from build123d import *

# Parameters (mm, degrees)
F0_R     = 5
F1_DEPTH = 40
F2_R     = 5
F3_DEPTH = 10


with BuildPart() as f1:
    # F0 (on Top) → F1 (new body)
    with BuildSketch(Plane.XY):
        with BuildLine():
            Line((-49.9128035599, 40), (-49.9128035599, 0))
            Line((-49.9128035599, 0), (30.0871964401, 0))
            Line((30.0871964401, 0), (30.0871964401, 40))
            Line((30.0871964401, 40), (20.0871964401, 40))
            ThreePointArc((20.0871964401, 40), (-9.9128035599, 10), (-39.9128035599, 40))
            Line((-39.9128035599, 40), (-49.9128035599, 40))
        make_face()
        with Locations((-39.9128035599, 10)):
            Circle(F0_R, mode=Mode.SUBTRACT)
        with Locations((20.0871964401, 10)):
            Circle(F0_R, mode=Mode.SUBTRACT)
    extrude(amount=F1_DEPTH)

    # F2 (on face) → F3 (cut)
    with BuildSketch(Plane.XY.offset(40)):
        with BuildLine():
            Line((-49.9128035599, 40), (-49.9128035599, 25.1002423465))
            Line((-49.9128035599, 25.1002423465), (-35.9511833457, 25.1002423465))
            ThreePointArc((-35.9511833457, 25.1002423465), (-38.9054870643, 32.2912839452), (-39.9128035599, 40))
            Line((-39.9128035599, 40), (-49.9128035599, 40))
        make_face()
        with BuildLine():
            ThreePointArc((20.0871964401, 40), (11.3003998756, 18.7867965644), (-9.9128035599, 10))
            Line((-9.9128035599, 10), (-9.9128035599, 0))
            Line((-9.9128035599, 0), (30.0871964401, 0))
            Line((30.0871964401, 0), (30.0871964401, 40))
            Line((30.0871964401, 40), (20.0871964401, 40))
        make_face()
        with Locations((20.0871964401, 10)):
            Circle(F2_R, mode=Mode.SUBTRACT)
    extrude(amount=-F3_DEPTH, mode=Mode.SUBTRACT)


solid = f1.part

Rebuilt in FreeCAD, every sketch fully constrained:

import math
import FreeCAD as App
import Part
import Sketcher
from FreeCAD import Vector

doc = App.newDocument("Part")
body = doc.addObject("PartDesign::Body", "Body")

# Sketch on XY plane
sketch1 = body.newObject("Sketcher::SketchObject", "Sketch")
sketch1.AttachmentSupport = (doc.getObject("XY_Plane"), [""])
sketch1.MapMode = "FlatFace"
sketch1.addGeometry([
    Part.LineSegment(Vector(-50, 40, 0), Vector(-50, 0, 0)),  # 0
    Part.LineSegment(Vector(-50, 0, 0), Vector(30, 0, 0)),  # 1
    Part.LineSegment(Vector(30, 0, 0), Vector(30, 40, 0)),  # 2
    Part.LineSegment(Vector(30, 40, 0), Vector(20, 40, 0)),  # 3
    Part.ArcOfCircle(Part.Circle(Vector(-10, 40, 0), Vector(0, 0, 1), 30), math.radians(180), math.radians(360)),  # 4
    Part.LineSegment(Vector(-40, 40, 0), Vector(-50, 40, 0)),  # 5
    Part.Circle(Vector(-40, 10, 0), Vector(0, 0, 1), 5),  # 6
    Part.Circle(Vector(20, 10, 0), Vector(0, 0, 1), 5),  # 7
], False)
sketch1.addConstraint([
    Sketcher.Constraint("Coincident", 0, 2, 1, 1),
    Sketcher.Constraint("Coincident", 1, 2, 2, 1),
    Sketcher.Constraint("Coincident", 2, 2, 3, 1),
    Sketcher.Constraint("Coincident", 3, 2, 4, 2),
    Sketcher.Constraint("Coincident", 4, 1, 5, 1),
    Sketcher.Constraint("Coincident", 5, 2, 0, 1),
    Sketcher.Constraint("Vertical", 0),
    Sketcher.Constraint("Horizontal", 1),
    Sketcher.Constraint("Vertical", 2),
    Sketcher.Constraint("Horizontal", 3),
    Sketcher.Constraint("Horizontal", 5),
    Sketcher.Constraint("Equal", 6, 7),
    Sketcher.Constraint("PointOnObject", 0, 2, -1),
    Sketcher.Constraint("Horizontal", 6, 3, 7, 3),
    Sketcher.Constraint("Horizontal", 4, 3, 2, 2),
    Sketcher.Constraint("Horizontal", 3, 2, 4, 1),
    Sketcher.Constraint("Vertical", 7, 3, 3, 2),
    Sketcher.Constraint("Vertical", 6, 3, 4, 1),
    Sketcher.Constraint("Equal", 3, 5),
    Sketcher.Constraint("Diameter", 6, 10.0),
    Sketcher.Constraint("Radius", 4, 30.0),
    Sketcher.Constraint("DistanceX", 1, 1, 1, 2, 80.0),
    Sketcher.Constraint("DistanceY", 0, 2, 0, 1, 40.0),
    Sketcher.Constraint("DistanceY", -1, 1, 6, 3, 10.0),
    Sketcher.Constraint("DistanceX", 4, 3, -1, 1, 9.912804),
])
pad1 = body.newObject("PartDesign::Pad", "Pad")
pad1.Profile = sketch1
pad1.Length = 40

# Sketch on XY plane
sketch2 = body.newObject("Sketcher::SketchObject", "Sketch001")
sketch2.AttachmentSupport = (doc.getObject("XY_Plane"), [""])
sketch2.MapMode = "FlatFace"
sketch2.AttachmentOffset = App.Placement(Vector(0, 0, 40), App.Rotation())
sketch2.addGeometry([
    Part.LineSegment(Vector(-50, 40, 0), Vector(-50, 25, 0)),  # 0
    Part.LineSegment(Vector(-50, 25, 0), Vector(-36, 25, 0)),  # 1
    Part.ArcOfCircle(Part.Circle(Vector(-10, 40, 0), Vector(0, 0, 1), 30), math.radians(180), math.radians(210)),  # 2
    Part.LineSegment(Vector(-40, 40, 0), Vector(-50, 40, 0)),  # 3
    Part.ArcOfCircle(Part.Circle(Vector(-10, 40, 0), Vector(0, 0, 1), 30), math.radians(-90), math.radians(0)),  # 4
    Part.LineSegment(Vector(-10, 10, 0), Vector(-10, 0, 0)),  # 5
    Part.LineSegment(Vector(-10, 0, 0), Vector(30, 0, 0)),  # 6
    Part.LineSegment(Vector(30, 0, 0), Vector(30, 40, 0)),  # 7
    Part.LineSegment(Vector(30, 40, 0), Vector(20, 40, 0)),  # 8
    Part.Circle(Vector(20, 10, 0), Vector(0, 0, 1), 5),  # 9
], False)
sketch2.addConstraint([
    Sketcher.Constraint("Coincident", 0, 2, 1, 1),
    Sketcher.Constraint("Coincident", 1, 2, 2, 2),
    Sketcher.Constraint("Coincident", 2, 1, 3, 1),
    Sketcher.Constraint("Coincident", 3, 2, 0, 1),
    Sketcher.Constraint("Coincident", 4, 1, 5, 1),
    Sketcher.Constraint("Coincident", 5, 2, 6, 1),
    Sketcher.Constraint("Coincident", 6, 2, 7, 1),
    Sketcher.Constraint("Coincident", 7, 2, 8, 1),
    Sketcher.Constraint("Coincident", 8, 2, 4, 2),
    Sketcher.Constraint("Vertical", 0),
    Sketcher.Constraint("Horizontal", 1),
    Sketcher.Constraint("Horizontal", 3),
    Sketcher.Constraint("Vertical", 5),
    Sketcher.Constraint("Horizontal", 6),
    Sketcher.Constraint("Vertical", 7),
    Sketcher.Constraint("Horizontal", 8),
    Sketcher.Constraint("Coincident", 4, 3, 2, 3),
    Sketcher.Constraint("Equal", 2, 4),
    Sketcher.Constraint("PointOnObject", 5, 2, -1),
    Sketcher.Constraint("Horizontal", 4, 3, 2, 1),
    Sketcher.Constraint("Horizontal", 9, 3, 4, 1),
    Sketcher.Constraint("Horizontal", 3, 2, 7, 2),
    Sketcher.Constraint("Vertical", 2, 3, 4, 1),
    Sketcher.Constraint("Vertical", 9, 3, 8, 2),
    Sketcher.Constraint("Equal", 3, 8),
    Sketcher.Constraint("Equal", 8, 5),
    Sketcher.Constraint("Diameter", 9, 10.0),
    Sketcher.Constraint("Radius", 2, 30.0),
    Sketcher.Constraint("DistanceX", 3, 2, 3, 1, 10.0),
    Sketcher.Constraint("DistanceX", 1, 1, 1, 2, 13.96162),
    Sketcher.Constraint("DistanceX", 2, 3, -1, 1, 9.912804),
])
pocket1 = body.newObject("PartDesign::Pocket", "Pocket")
pocket1.Profile = sketch2
pocket1.Length = 10

doc.recompute()
